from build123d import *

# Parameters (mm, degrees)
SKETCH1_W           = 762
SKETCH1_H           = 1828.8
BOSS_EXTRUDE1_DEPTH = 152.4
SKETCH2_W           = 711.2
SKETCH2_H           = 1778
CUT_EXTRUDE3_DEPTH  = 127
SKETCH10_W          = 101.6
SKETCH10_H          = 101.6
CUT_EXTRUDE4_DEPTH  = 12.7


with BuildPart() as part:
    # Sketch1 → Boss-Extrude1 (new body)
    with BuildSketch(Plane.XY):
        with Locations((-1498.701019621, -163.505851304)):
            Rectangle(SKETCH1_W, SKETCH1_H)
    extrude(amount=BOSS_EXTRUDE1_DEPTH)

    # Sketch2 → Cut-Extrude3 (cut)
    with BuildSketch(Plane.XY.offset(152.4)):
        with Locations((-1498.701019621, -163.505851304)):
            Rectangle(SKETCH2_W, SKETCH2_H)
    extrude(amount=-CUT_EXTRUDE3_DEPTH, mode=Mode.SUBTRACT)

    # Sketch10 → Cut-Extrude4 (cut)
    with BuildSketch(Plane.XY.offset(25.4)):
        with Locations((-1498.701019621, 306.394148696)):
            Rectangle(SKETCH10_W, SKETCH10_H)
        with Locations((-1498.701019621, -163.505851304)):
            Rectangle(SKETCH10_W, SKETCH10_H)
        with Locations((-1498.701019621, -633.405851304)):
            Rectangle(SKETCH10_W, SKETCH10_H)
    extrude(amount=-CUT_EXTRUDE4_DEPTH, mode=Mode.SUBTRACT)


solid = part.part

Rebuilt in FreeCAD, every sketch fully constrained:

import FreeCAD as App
import Part
import Sketcher
from FreeCAD import Vector
Q = App.Units.Quantity

doc = App.newDocument("Part")
body = doc.addObject("PartDesign::Body", "Body")

# Sketch on XY plane
sketch1 = body.newObject("Sketcher::SketchObject", "Sketch")
sketch1.AttachmentSupport = (doc.getObject("XY_Plane"), [""])
sketch1.MapMode = "FlatFace"
sketch1.addGeometry(Part.LineSegment(Vector(-1879.70102, 750.894149, 0), Vector(-1879.70102, -1077.905851, 0)), False)
sketch1.addGeometry(Part.LineSegment(Vector(-1879.70102, -1077.905851, 0), Vector(-1117.70102, -1077.905851, 0)), False)
sketch1.addGeometry(Part.LineSegment(Vector(-1117.70102, -1077.905851, 0), Vector(-1117.70102, 750.894149, 0)), False)
sketch1.addGeometry(Part.LineSegment(Vector(-1117.70102, 750.894149, 0), Vector(-1879.70102, 750.894149, 0)), False)
sketch1.addConstraint(Sketcher.Constraint("Coincident", 0, 2, 1, 1))
sketch1.addConstraint(Sketcher.Constraint("Coincident", 1, 2, 2, 1))
sketch1.addConstraint(Sketcher.Constraint("Coincident", 2, 2, 3, 1))
sketch1.addConstraint(Sketcher.Constraint("Coincident", 3, 2, 0, 1))
sketch1.addConstraint(Sketcher.Constraint("Vertical", 0))
sketch1.addConstraint(Sketcher.Constraint("Horizontal", 1))
sketch1.addConstraint(Sketcher.Constraint("Vertical", 2))
sketch1.addConstraint(Sketcher.Constraint("Horizontal", 3))
sketch1.addConstraint(Sketcher.Constraint("DistanceX", 1, 1, 1, 2, Q("30 in")))
sketch1.addConstraint(Sketcher.Constraint("DistanceY", 0, 2, 0, 1, Q("72 in")))
sketch1.addConstraint(Sketcher.Constraint("DistanceX", 0, 2, -1, 1, 1879.70102))
sketch1.addConstraint(Sketcher.Constraint("DistanceY", 0, 2, -1, 1, 1077.905851))
pad1 = body.newObject("PartDesign::Pad", "Pad")
pad1.Profile = sketch1
pad1.Length = Q("6 in")

# Sketch on XY plane
sketch2 = body.newObject("Sketcher::SketchObject", "Sketch001")
sketch2.AttachmentSupport = (doc.getObject("XY_Plane"), [""])
sketch2.MapMode = "FlatFace"
sketch2.AttachmentOffset = App.Placement(Vector(0, 0, 6 * 25.4), App.Rotation())
sketch2.addGeometry(Part.LineSegment(Vector(-1854.30102, 725.494149, 0), Vector(-1854.30102, -1052.505851, 0)), False)
sketch2.addGeometry(Part.LineSegment(Vector(-1854.30102, -1052.505851, 0), Vector(-1143.10102, -1052.505851, 0)), False)
sketch2.addGeometry(Part.LineSegment(Vector(-1143.10102, -1052.505851, 0), Vector(-1143.10102, 725.494149, 0)), False)
sketch2.addGeometry(Part.LineSegment(Vector(-1143.10102, 725.494149, 0), Vector(-1854.30102, 725.494149, 0)), False)
sketch2.addConstraint(Sketcher.Constraint("Coincident", 0, 2, 1, 1))
sketch2.addConstraint(Sketcher.Constraint("Coincident", 1, 2, 2, 1))
sketch2.addConstraint(Sketcher.Constraint("Coincident", 2, 2, 3, 1))
sketch2.addConstraint(Sketcher.Constraint("Coincident", 3, 2, 0, 1))
sketch2.addConstraint(Sketcher.Constraint("Vertical", 0))
sketch2.addConstraint(Sketcher.Constraint("Horizontal", 1))
sketch2.addConstraint(Sketcher.Constraint("Vertical", 2))
sketch2.addConstraint(Sketcher.Constraint("Horizontal", 3))
sketch2.addConstraint(Sketcher.Constraint("DistanceX", 1, 1, 1, 2, Q("28 in")))
sketch2.addConstraint(Sketcher.Constraint("DistanceY", 0, 2, 0, 1, Q("70 in")))
sketch2.addConstraint(Sketcher.Constraint("DistanceX", 0, 2, -1, 1, 1854.30102))
sketch2.addConstraint(Sketcher.Constraint("DistanceY", 0, 2, -1, 1, 1052.505851))
pocket1 = body.newObject("PartDesign::Pocket", "Pocket")
pocket1.Profile = sketch2
pocket1.Length = Q("5 in")

# Sketch on XY plane
sketch3 = body.newObject("Sketcher::SketchObject", "Sketch002")
sketch3.AttachmentSupport = (doc.getObject("XY_Plane"), [""])
sketch3.MapMode = "FlatFace"
sketch3.AttachmentOffset = App.Placement(Vector(0, 0, 1 * 25.4), App.Rotation())
sketch3.addGeometry(Part.LineSegment(Vector(-1549.50102, 357.194149, 0), Vector(-1549.50102, 255.594149, 0)), False)
sketch3.addGeometry(Part.LineSegment(Vector(-1549.50102, 255.594149, 0), Vector(-1447.90102, 255.594149, 0)), False)
sketch3.addGeometry(Part.LineSegment(Vector(-1447.90102, 255.594149, 0), Vector(-1447.90102, 357.194149, 0)), False)
sketch3.addGeometry(Part.LineSegment(Vector(-1447.90102, 357.194149, 0), Vector(-1549.50102, 357.194149, 0)), False)
sketch3.addGeometry(Part.LineSegment(Vector(-1549.50102, -112.705851, 0), Vector(-1549.50102, -214.305851, 0)), False)
sketch3.addGeometry(Part.LineSegment(Vector(-1549.50102, -214.305851, 0), Vector(-1447.90102, -214.305851, 0)), False)
sketch3.addGeometry(Part.LineSegment(Vector(-1447.90102, -214.305851, 0), Vector(-1447.90102, -112.705851, 0)), False)
sketch3.addGeometry(Part.LineSegment(Vector(-1447.90102, -112.705851, 0), Vector(-1549.50102, -112.705851, 0)), False)
sketch3.addGeometry(Part.LineSegment(Vector(-1549.50102, -582.605851, 0), Vector(-1549.50102, -684.205851, 0)), False)
sketch3.addGeometry(Part.LineSegment(Vector(-1549.50102, -684.205851, 0), Vector(-1447.90102, -684.205851, 0)), False)
sketch3.addGeometry(Part.LineSegment(Vector(-1447.90102, -684.205851, 0), Vector(-1447.90102, -582.605851, 0)), False)
sketch3.addGeometry(Part.LineSegment(Vector(-1447.90102, -582.605851, 0), Vector(-1549.50102, -582.605851, 0)), False)
sketch3.addConstraint(Sketcher.Constraint("Coincident", 0, 2, 1, 1))
sketch3.addConstraint(Sketcher.Constraint("Coincident", 1, 2, 2, 1))
sketch3.addConstraint(Sketcher.Constraint("Coincident", 2, 2, 3, 1))
sketch3.addConstraint(Sketcher.Constraint("Coincident", 3, 2, 0, 1))
sketch3.addConstraint(Sketcher.Constraint("Coincident", 4, 2, 5, 1))
sketch3.addConstraint(Sketcher.Constraint("Coincident", 5, 2, 6, 1))
sketch3.addConstraint(Sketcher.Constraint("Coincident", 6, 2, 7, 1))
sketch3.addConstraint(Sketcher.Constraint("Coincident", 7, 2, 4, 1))
sketch3.addConstraint(Sketcher.Constraint("Coincident", 8, 2, 9, 1))
sketch3.addConstraint(Sketcher.Constraint("Coincident", 9, 2, 10, 1))
sketch3.addConstraint(Sketcher.Constraint("Coincident", 10, 2, 11, 1))
sketch3.addConstraint(Sketcher.Constraint("Coincident", 11, 2, 8, 1))
sketch3.addConstraint(Sketcher.Constraint("Vertical", 0))
sketch3.addConstraint(Sketcher.Constraint("Horizontal", 1))
sketch3.addConstraint(Sketcher.Constraint("Vertical", 2))
sketch3.addConstraint(Sketcher.Constraint("Horizontal", 3))
sketch3.addConstraint(Sketcher.Constraint("Vertical", 4))
sketch3.addConstraint(Sketcher.Constraint("Horizontal", 5))
sketch3.addConstraint(Sketcher.Constraint("Vertical", 6))
sketch3.addConstraint(Sketcher.Constraint("Horizontal", 7))
sketch3.addConstraint(Sketcher.Constraint("Vertical", 8))
sketch3.addConstraint(Sketcher.Constraint("Horizontal", 9))
sketch3.addConstraint(Sketcher.Constraint("Vertical", 10))
sketch3.addConstraint(Sketcher.Constraint("Horizontal", 11))
sketch3.addConstraint(Sketcher.Constraint("Vertical", 3, 2, 4, 2))
sketch3.addConstraint(Sketcher.Constraint("Vertical", 2, 2, 5, 2))
sketch3.addConstraint(Sketcher.Constraint("Vertical", 7, 2, 8, 2))
sketch3.addConstraint(Sketcher.Constraint("Vertical", 6, 2, 9, 2))
sketch3.addConstraint(Sketcher.Constraint("Equal", 11, 0))
sketch3.addConstraint(Sketcher.Constraint("Equal", 2, 4))
sketch3.addConstraint(Sketcher.Constraint("Equal", 6, 8))
sketch3.addConstraint(Sketcher.Constraint("DistanceX", 1, 1, 1, 2, Q("4 in")))
sketch3.addConstraint(Sketcher.Constraint("DistanceY", 8, 2, 0, 2, Q("37 in")))
sketch3.addConstraint(Sketcher.Constraint("DistanceY", 4, 2, 0, 2, Q("18.5 in")))
sketch3.addConstraint(Sketcher.Constraint("DistanceX", 0, 2, -1, 1, 1549.50102))
sketch3.addConstraint(Sketcher.Constraint("DistanceY", -1, 1, 0, 2, 255.594149))
pocket2 = body.newObject("PartDesign::Pocket", "Pocket001")
pocket2.Profile = sketch3
pocket2.Length = Q("0.5 in")

doc.recompute()
